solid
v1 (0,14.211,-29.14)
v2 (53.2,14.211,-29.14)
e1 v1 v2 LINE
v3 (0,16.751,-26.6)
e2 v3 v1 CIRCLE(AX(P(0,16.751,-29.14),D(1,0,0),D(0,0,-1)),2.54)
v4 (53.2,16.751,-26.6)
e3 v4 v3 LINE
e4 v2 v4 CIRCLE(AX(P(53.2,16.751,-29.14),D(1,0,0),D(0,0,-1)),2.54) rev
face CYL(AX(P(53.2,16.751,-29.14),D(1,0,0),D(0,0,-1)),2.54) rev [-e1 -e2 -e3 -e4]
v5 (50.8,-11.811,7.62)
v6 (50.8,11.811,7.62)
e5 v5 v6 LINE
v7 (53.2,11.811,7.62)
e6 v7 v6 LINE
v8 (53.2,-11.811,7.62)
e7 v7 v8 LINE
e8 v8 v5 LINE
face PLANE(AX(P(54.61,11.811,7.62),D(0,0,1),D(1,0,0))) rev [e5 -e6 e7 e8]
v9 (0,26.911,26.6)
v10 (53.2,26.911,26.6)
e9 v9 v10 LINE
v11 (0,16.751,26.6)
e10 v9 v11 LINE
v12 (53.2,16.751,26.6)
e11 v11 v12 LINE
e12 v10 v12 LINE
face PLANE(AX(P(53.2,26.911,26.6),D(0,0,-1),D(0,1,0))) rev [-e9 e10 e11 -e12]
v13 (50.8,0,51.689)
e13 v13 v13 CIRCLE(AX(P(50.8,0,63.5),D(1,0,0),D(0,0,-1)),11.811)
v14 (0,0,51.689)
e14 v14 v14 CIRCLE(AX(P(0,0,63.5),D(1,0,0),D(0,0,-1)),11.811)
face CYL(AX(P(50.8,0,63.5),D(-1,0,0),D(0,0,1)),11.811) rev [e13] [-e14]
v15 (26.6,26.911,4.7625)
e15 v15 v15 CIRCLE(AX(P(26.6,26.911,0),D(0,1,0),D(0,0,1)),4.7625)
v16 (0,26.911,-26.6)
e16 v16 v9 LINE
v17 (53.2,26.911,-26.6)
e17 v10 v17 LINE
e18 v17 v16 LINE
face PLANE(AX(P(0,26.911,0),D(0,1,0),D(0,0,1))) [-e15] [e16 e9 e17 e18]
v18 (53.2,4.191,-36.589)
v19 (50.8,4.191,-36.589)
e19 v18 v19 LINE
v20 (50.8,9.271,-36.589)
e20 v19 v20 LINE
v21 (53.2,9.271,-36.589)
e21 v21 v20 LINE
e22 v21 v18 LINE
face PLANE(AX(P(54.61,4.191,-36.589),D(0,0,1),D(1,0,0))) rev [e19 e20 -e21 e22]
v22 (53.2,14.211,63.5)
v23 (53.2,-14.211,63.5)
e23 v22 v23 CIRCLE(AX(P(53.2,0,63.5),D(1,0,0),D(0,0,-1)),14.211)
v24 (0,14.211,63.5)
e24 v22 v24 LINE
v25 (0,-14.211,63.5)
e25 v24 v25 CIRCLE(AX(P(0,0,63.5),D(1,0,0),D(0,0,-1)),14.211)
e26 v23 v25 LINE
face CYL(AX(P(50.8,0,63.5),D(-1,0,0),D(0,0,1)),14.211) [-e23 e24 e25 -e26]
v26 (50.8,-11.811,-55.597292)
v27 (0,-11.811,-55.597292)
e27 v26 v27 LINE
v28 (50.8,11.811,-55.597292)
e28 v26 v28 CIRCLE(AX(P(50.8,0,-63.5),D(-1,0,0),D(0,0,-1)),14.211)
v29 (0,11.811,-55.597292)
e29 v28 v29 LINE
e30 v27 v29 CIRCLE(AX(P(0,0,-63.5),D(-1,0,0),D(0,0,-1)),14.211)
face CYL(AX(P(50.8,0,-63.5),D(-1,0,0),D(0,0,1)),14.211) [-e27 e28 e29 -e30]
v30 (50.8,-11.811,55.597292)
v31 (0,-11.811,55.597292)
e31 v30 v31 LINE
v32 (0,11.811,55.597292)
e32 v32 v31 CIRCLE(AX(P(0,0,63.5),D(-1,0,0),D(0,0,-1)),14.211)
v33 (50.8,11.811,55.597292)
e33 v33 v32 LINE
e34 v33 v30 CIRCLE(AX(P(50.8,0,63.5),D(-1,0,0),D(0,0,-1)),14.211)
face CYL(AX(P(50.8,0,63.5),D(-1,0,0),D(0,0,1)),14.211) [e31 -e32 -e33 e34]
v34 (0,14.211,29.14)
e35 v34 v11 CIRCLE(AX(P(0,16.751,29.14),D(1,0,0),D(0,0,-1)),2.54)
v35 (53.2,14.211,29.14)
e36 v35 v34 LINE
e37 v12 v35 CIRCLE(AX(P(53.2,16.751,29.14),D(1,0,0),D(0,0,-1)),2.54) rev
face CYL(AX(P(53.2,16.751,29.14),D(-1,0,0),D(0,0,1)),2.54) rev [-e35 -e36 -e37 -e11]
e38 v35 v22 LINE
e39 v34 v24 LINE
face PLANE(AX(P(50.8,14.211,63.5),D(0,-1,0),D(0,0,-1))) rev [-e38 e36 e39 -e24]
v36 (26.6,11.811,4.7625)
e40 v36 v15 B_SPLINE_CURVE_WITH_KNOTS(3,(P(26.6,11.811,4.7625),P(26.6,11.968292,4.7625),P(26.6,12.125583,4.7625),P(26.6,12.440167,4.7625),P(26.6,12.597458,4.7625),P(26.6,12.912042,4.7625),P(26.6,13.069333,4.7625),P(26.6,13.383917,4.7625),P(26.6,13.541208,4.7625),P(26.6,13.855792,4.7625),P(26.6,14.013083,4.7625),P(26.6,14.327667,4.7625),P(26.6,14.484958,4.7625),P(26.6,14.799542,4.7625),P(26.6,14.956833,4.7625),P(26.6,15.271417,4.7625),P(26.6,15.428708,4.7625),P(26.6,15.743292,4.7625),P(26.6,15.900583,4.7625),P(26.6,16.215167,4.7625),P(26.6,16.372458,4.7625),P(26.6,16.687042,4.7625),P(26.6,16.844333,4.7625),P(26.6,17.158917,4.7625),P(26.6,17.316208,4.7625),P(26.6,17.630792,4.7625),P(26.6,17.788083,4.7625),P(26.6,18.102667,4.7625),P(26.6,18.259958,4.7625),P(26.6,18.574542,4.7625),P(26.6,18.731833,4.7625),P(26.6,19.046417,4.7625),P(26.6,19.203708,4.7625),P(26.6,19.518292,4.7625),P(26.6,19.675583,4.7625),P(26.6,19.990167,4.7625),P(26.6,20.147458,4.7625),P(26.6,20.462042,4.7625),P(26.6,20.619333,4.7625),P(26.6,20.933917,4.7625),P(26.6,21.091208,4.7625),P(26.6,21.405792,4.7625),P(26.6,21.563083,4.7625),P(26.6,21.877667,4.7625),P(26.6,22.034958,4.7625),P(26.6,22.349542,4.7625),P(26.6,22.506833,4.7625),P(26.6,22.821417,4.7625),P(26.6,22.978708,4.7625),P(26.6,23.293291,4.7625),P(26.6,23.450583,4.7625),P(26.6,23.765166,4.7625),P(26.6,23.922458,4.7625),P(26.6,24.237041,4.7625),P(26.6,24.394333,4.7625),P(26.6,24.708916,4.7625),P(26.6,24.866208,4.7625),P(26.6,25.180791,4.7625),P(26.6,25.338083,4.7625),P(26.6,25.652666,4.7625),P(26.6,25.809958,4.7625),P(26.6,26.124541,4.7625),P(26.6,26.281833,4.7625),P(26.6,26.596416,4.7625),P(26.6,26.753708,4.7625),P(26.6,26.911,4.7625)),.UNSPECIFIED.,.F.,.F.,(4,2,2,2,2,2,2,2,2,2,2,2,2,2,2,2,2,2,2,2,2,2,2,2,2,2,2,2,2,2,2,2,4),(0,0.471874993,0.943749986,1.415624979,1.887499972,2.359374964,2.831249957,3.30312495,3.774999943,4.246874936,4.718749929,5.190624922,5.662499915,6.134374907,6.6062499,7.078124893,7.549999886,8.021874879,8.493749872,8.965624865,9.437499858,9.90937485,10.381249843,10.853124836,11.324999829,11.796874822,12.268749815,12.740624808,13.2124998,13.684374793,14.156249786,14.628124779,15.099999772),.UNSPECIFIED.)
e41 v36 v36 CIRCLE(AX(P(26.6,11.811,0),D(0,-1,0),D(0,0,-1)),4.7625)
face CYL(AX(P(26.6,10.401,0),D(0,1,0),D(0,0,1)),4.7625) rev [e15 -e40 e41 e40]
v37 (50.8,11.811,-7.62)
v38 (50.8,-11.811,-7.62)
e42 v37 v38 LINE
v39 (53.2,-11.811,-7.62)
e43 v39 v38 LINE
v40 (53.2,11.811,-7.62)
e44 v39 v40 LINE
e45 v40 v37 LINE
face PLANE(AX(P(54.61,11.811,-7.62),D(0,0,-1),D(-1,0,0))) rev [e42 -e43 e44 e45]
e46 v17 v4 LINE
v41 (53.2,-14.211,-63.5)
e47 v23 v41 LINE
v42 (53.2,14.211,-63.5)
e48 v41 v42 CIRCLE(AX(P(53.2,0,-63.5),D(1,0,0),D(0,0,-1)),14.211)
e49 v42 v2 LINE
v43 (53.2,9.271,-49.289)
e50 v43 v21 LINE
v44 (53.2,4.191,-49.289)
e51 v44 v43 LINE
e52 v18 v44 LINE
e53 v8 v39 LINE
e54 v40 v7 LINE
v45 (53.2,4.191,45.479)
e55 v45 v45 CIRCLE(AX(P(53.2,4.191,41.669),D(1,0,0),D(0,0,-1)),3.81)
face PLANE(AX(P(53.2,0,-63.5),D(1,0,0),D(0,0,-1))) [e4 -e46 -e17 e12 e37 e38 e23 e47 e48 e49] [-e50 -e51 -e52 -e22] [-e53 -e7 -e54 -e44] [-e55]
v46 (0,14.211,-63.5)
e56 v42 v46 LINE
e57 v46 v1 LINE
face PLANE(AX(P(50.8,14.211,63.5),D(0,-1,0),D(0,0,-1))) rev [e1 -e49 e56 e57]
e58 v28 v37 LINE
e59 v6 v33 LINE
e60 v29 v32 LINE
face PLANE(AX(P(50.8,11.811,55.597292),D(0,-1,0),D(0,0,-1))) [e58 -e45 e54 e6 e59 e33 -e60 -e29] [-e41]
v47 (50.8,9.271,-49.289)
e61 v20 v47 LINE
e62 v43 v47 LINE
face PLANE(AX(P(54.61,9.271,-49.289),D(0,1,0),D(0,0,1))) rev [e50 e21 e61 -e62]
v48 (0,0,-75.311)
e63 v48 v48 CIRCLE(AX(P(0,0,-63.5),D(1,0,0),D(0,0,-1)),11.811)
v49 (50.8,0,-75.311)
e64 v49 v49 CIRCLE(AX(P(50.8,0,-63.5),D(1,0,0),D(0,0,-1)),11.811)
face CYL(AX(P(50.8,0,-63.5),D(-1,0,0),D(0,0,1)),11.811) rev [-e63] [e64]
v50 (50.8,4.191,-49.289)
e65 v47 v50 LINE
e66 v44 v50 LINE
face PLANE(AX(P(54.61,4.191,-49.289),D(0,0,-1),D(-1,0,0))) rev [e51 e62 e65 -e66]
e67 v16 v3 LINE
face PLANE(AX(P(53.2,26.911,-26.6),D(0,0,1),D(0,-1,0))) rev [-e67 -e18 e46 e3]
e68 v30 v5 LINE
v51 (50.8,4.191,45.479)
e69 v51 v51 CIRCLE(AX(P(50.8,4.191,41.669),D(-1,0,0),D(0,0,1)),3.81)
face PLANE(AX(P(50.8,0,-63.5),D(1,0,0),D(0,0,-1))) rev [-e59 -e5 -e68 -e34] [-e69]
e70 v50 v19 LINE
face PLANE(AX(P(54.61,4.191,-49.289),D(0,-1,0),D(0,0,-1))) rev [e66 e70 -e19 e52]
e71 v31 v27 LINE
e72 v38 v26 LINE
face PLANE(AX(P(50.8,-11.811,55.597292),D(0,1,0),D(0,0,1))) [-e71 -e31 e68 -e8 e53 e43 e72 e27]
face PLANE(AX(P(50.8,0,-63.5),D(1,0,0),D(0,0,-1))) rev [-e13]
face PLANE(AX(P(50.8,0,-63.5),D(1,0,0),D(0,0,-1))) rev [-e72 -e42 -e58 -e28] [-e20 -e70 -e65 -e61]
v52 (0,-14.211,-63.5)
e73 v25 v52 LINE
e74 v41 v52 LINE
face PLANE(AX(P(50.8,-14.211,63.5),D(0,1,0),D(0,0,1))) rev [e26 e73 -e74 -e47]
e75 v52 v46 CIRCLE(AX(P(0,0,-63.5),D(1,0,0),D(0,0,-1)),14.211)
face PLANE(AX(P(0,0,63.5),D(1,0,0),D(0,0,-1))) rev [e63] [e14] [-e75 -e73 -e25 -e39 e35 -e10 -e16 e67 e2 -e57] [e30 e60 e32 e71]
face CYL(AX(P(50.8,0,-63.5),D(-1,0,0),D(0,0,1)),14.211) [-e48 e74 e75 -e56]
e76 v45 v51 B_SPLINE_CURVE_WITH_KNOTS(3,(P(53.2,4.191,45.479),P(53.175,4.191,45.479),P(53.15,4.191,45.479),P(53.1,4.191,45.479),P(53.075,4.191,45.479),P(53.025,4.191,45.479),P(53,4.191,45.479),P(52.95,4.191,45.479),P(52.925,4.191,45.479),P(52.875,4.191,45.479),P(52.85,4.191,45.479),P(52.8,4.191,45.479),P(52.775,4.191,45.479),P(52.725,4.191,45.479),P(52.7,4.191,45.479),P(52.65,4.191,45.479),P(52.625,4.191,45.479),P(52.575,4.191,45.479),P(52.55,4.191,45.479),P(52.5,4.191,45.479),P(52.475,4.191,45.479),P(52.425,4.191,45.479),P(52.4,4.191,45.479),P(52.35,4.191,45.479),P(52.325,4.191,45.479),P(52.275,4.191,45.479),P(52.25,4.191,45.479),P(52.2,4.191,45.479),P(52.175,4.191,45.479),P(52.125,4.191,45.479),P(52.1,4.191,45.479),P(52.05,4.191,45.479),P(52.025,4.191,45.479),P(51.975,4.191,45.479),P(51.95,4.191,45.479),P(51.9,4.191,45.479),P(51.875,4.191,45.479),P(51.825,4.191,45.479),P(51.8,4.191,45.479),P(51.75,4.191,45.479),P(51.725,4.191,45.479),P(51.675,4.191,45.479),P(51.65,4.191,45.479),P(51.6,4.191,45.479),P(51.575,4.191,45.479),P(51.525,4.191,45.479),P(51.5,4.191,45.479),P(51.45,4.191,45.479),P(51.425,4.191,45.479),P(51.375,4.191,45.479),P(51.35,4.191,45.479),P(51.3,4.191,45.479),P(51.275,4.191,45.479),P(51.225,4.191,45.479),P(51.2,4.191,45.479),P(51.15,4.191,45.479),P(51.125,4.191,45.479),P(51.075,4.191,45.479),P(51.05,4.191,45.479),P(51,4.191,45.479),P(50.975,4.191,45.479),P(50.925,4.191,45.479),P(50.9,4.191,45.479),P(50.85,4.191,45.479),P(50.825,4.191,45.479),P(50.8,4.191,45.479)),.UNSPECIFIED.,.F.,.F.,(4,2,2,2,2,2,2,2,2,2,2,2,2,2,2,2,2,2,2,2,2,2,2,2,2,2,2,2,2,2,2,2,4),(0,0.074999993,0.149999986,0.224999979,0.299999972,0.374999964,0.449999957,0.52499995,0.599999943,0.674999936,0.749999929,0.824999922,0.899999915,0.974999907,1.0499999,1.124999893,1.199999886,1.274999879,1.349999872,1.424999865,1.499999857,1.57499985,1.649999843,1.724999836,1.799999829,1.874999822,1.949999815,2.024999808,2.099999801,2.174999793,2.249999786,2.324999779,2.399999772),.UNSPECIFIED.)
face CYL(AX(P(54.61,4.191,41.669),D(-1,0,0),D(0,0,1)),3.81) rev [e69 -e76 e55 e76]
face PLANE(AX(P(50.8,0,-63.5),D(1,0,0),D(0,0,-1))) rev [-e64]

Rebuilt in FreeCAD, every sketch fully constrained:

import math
import FreeCAD as App
import Part
import Sketcher
from FreeCAD import Vector
Q = App.Units.Quantity


def edges_at(feature, points):
    """Names of the edges that pass closest to the given points."""
    edges = feature.Shape.Edges
    near = lambda p: min(range(len(edges)), key=lambda i: edges[i].distToShape(Part.Vertex(*p))[0])
    return sorted({f"Edge{near(p) + 1}" for p in points})


def add_polygon(sketch, points):
    """Adds a closed chain of lines whose ends are joined by coincident constraints."""
    first, n = sketch.GeometryCount, len(points)
    for a, b in zip(points, points[1:] + points[:1]):
        sketch.addGeometry(Part.LineSegment(App.Vector(*a, 0), App.Vector(*b, 0)), False)
    for i in range(n):
        sketch.addConstraint(Sketcher.Constraint("Coincident", first + i, 2, first + (i + 1) % n, 1))

doc = App.newDocument("Part")
body = doc.addObject("PartDesign::Body", "Body")

# Sketch on YZ plane
sketch1 = body.newObject("Sketcher::SketchObject", "Sketch")
sketch1.AttachmentSupport = (doc.getObject("YZ_Plane"), [""])
sketch1.MapMode = "FlatFace"
sketch1.addGeometry([
    Part.LineSegment(Vector(14, -64, 0), Vector(14, 64, 0)),  # 0
    Part.ArcOfCircle(Part.Circle(Vector(0, 64, 0), Vector(0, 0, 1), 14), math.radians(0), math.radians(180)),  # 1
    Part.LineSegment(Vector(-14, 64, 0), Vector(-14, -64, 0)),  # 2
    Part.ArcOfCircle(Part.Circle(Vector(0, -64, 0), Vector(0, 0, 1), 14), math.radians(180), math.radians(360)),  # 3
    Part.Circle(Vector(0, -64, 0), Vector(0, 0, 1), 12),  # 4
    Part.LineSegment(Vector(12, 56, 0), Vector(12, -56, 0)),  # 5
    Part.ArcOfCircle(Part.Circle(Vector(0, -63, 0), Vector(0, 0, 1), 14), math.radians(34), math.radians(146)),  # 6
    Part.LineSegment(Vector(-12, -56, 0), Vector(-12, 56, 0)),  # 7
    Part.ArcOfCircle(Part.Circle(Vector(0, 63, 0), Vector(0, 0, 1), 14), math.radians(-146), math.radians(-34)),  # 8
    Part.Circle(Vector(0, 64, 0), Vector(0, 0, 1), 12),  # 9
], False)
sketch1.addConstraint([
    Sketcher.Constraint("Tangent", 0, 2, 1, 1),
    Sketcher.Constraint("Tangent", 1, 2, 2, 1),
    Sketcher.Constraint("Tangent", 2, 2, 3, 1),
    Sketcher.Constraint("Tangent", 3, 2, 0, 1),
    Sketcher.Constraint("Coincident", 5, 2, 6, 1),
    Sketcher.Constraint("Coincident", 6, 2, 7, 1),
    Sketcher.Constraint("Coincident", 7, 2, 8, 1),
    Sketcher.Constraint("Coincident", 8, 2, 5, 1),
    Sketcher.Constraint("Vertical", 0),
    Sketcher.Constraint("Vertical", 2),
    Sketcher.Constraint("Vertical", 5),
    Sketcher.Constraint("Vertical", 7),
    Sketcher.Constraint("Coincident", 4, 3, 3, 3),
    Sketcher.Constraint("Coincident", 6, 3, 3, 3),
    Sketcher.Constraint("Coincident", 8, 3, 1, 3),
    Sketcher.Constraint("Coincident", 9, 3, 1, 3),
    Sketcher.Constraint("Equal", 3, 6),
    Sketcher.Constraint("Equal", 6, 8),
    Sketcher.Constraint("Equal", 4, 9),
    Sketcher.Constraint("Symmetric", 1, 3, 3, 3, -1, 1),
    Sketcher.Constraint("Horizontal", 5, 2, 6, 2),
    Sketcher.Constraint("Diameter", 4, Q("0.93 in")),
    Sketcher.Constraint("DistanceY", 0, 1, 0, 2, Q("5 in")),
    Sketcher.Constraint("Radius", 1, Q("14.211 mm")),
    Sketcher.Constraint("DistanceX", 6, 2, 5, 2, Q("0.93 in")),
])
pad1 = body.newObject("PartDesign::Pad", "Pad")
pad1.Profile = sketch1
pad1.Length = Q("2 in")

# Sketch on YZ plane
sketch2 = body.newObject("Sketcher::SketchObject", "Sketch001")
sketch2.AttachmentSupport = (doc.getObject("YZ_Plane"), [""])
sketch2.MapMode = "FlatFace"
sketch2.AttachmentOffset = App.Placement(Vector(0, 0, 2 * 25.4), App.Rotation())
sketch2.addGeometry([
    Part.LineSegment(Vector(-14, 64, 0), Vector(-14, -64, 0)),
    Part.ArcOfCircle(Part.Circle(Vector(0, -64, 0), Vector(0, 0, 1), 14), math.radians(180), math.radians(360)),
    Part.LineSegment(Vector(14, -64, 0), Vector(14, 64, 0)),
    Part.ArcOfCircle(Part.Circle(Vector(0, 64, 0), Vector(0, 0, 1), 14), math.radians(0), math.radians(180)),
], False)
sketch2.addConstraint([
    Sketcher.Constraint("Tangent", 0, 2, 1, 1),
    Sketcher.Constraint("Tangent", 1, 2, 2, 1),
    Sketcher.Constraint("Tangent", 2, 2, 3, 1),
    Sketcher.Constraint("Tangent", 3, 2, 0, 1),
    Sketcher.Constraint("Vertical", 0),
    Sketcher.Constraint("Vertical", 2),
    Sketcher.Constraint("Symmetric", 1, 3, 3, 3, -1, 1),
    Sketcher.Constraint("DistanceY", 0, 2, 0, 1, Q("5 in")),
    Sketcher.Constraint("Radius", 1, Q("14.211 mm")),
])
pad2 = body.newObject("PartDesign::Pad", "Pad001")
pad2.Profile = sketch2
pad2.Length = 2.4

# Sketch on YZ plane
sketch3 = body.newObject("Sketcher::SketchObject", "Sketch002")
sketch3.AttachmentSupport = (doc.getObject("YZ_Plane"), [""])
sketch3.MapMode = "FlatFace"
sketch3.AttachmentOffset = App.Placement(Vector(0, 0, 2 * 25.4), App.Rotation())
sketch3.addGeometry(Part.Circle(Vector(4.2, 41.7, 0), Vector(0, 0, 1), 3.8), False)  # 0
add_polygon(sketch3, [(9.3, -49.3), (4.2, -49.3), (4.2, -36.6), (9.3, -36.6)])  # lines 1-4
add_polygon(sketch3, [(11.8, -7.6), (-11.8, -7.6), (-11.8, 7.6), (11.8, 7.6)])  # lines 5-8
sketch3.addConstraint([
    Sketcher.Constraint("Horizontal", 1),
    Sketcher.Constraint("Vertical", 2),
    Sketcher.Constraint("Horizontal", 3),
    Sketcher.Constraint("Vertical", 4),
    Sketcher.Constraint("Horizontal", 5),
    Sketcher.Constraint("Vertical", 6),
    Sketcher.Constraint("Horizontal", 7),
    Sketcher.Constraint("Vertical", 8),
    Sketcher.Constraint("Symmetric", 5, 2, 7, 2, -1, 1),
    Sketcher.Constraint("Vertical", 0, 3, 1, 2),
    Sketcher.Constraint("Diameter", 0, Q("0.3 in")),
    Sketcher.Constraint("DistanceX", 1, 2, 1, 1, Q("0.2 in")),
    Sketcher.Constraint("DistanceY", 2, 1, 2, 2, Q("0.5 in")),
    Sketcher.Constraint("DistanceY", 6, 1, 6, 2, Q("0.6 in")),
    Sketcher.Constraint("DistanceX", 5, 2, 5, 1, Q("0.93 in")),
    Sketcher.Constraint("DistanceX", 0, 3, 7, 2, Q("0.3 in")),
    Sketcher.Constraint("DistanceY", -1, 1, 0, 3, Q("41.669 mm")),
    Sketcher.Constraint("DistanceY", 1, 2, -1, 1, Q("49.289 mm")),
])
pocket1 = body.newObject("PartDesign::Pocket", "Pocket")
pocket1.Profile = sketch3
pocket1.Length = Q("0.15 in")
pocket1.Reversed = True

# Sketch on XZ plane
sketch4 = body.newObject("Sketcher::SketchObject", "Sketch003")
sketch4.AttachmentSupport = (doc.getObject("XZ_Plane"), [""])
sketch4.MapMode = "FlatFace"
sketch4.AttachmentOffset = App.Placement(Vector(0, 0, -14.211), App.Rotation())
add_polygon(sketch4, [(0, -27), (0, 27), (53, 27), (53, -27)])  # lines 0-3
sketch4.addConstraint([
    Sketcher.Constraint("Vertical", 0),
    Sketcher.Constraint("Horizontal", 1),
    Sketcher.Constraint("Vertical", 2),
    Sketcher.Constraint("Horizontal", 3),
    Sketcher.Constraint("Symmetric", 0, 2, 3, 2, -1, 1),
    Sketcher.Constraint("Equal", 3, 0),
    Sketcher.Constraint("DistanceX", 1, 1, 1, 2, Q("53.2 mm")),
])
pad3 = body.newObject("PartDesign::Pad", "Pad002")
pad3.Profile = sketch4
pad3.Length = Q("0.5 in")
pad3.Reversed = True

# Sketch on XZ plane
sketch5 = body.newObject("Sketcher::SketchObject", "Sketch004")
sketch5.AttachmentSupport = (doc.getObject("XZ_Plane"), [""])
sketch5.MapMode = "FlatFace"
sketch5.AttachmentOffset = App.Placement(Vector(0, 0, -14.211), App.Rotation())
sketch5.addGeometry(Part.Circle(Vector(26.6, 0, 0), Vector(0, 0, 1), 4.8), False)
sketch5.addConstraint([
    Sketcher.Constraint("PointOnObject", 0, 3, -1),
    Sketcher.Constraint("Diameter", 0, Q("0.375 in")),
    Sketcher.Constraint("DistanceX", -1, 1, 0, 3, Q("26.6 mm")),
])
pocket2 = body.newObject("PartDesign::Pocket", "Pocket001")
pocket2.Profile = sketch5
pocket2.Type = "TwoLengths"
pocket2.Length = 99.371996
pocket2.Length2 = Q("0.15 in")
doc.recompute()

fillet = body.newObject("PartDesign::Fillet", "Fillet")
fillet.Base = (pocket2, edges_at(pocket2, [(26.6, 14.211, 26.6), (26.6, 14.211, -26.6)]))
fillet.Radius = Q("0.1 in")

doc.recompute()
